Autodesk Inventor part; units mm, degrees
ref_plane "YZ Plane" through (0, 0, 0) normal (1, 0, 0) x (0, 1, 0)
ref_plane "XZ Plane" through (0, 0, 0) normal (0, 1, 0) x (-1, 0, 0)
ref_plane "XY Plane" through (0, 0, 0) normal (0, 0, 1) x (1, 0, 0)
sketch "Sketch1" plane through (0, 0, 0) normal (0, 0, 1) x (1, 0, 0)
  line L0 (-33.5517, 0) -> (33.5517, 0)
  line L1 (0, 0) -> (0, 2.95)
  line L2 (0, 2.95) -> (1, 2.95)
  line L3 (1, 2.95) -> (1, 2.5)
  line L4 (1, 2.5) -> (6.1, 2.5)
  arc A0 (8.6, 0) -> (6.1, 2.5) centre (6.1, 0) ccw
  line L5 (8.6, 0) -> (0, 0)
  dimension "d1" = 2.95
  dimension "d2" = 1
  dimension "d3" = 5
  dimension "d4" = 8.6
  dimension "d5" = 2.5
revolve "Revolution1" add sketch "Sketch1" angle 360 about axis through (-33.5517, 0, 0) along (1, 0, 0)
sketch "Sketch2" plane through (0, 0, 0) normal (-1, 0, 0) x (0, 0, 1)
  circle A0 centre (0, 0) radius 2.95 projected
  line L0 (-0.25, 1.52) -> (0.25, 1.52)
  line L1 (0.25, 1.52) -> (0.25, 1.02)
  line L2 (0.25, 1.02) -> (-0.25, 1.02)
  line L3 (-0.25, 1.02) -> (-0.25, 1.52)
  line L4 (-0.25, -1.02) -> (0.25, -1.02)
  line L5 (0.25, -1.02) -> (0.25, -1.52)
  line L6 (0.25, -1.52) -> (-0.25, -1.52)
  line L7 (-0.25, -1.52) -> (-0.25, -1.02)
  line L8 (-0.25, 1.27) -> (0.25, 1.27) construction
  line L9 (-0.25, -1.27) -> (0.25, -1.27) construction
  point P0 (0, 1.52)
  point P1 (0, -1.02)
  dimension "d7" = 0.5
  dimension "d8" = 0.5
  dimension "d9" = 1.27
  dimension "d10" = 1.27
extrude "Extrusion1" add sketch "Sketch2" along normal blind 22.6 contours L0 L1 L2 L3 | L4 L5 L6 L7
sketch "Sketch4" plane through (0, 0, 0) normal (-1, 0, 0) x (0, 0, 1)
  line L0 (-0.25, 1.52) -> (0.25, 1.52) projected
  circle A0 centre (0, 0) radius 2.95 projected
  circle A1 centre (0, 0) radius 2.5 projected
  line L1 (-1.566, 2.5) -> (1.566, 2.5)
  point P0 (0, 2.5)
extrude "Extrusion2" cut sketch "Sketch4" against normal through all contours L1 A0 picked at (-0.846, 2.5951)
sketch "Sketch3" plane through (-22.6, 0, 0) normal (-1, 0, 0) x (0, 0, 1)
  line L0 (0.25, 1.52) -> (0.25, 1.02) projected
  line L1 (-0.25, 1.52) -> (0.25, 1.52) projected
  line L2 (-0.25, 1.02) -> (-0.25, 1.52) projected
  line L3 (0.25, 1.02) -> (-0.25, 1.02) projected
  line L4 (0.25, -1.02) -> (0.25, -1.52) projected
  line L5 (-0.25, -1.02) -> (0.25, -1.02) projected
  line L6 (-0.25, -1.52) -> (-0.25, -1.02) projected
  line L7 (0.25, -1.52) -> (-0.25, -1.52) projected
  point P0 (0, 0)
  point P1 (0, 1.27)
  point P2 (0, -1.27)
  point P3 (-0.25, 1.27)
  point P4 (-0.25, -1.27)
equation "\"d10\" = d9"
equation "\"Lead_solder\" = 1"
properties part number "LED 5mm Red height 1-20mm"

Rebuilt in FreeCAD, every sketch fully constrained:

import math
import FreeCAD as App
import Part
import Sketcher
Q = App.Units.Quantity


def add_polygon(sketch, points):
    """Adds a closed chain of lines whose ends are joined by coincident constraints."""
    first, n = sketch.GeometryCount, len(points)
    for a, b in zip(points, points[1:] + points[:1]):
        sketch.addGeometry(Part.LineSegment(App.Vector(*a, 0), App.Vector(*b, 0)), False)
    for i in range(n):
        sketch.addConstraint(Sketcher.Constraint("Coincident", first + i, 2, first + (i + 1) % n, 1))

doc = App.newDocument("Part")
body = doc.addObject("PartDesign::Body", "Body")

sketch1 = body.newObject("Sketcher::SketchObject", "Sketch")
sketch1.AttachmentSupport = (doc.getObject("XY_Plane"), [""])
sketch1.MapMode = "FlatFace"
sketch1.addGeometry(Part.LineSegment(App.Vector(0, 2.95, 0), App.Vector(0, 0, 0)), False)
sketch1.addGeometry(Part.LineSegment(App.Vector(0, 0, 0), App.Vector(8.6, 0, 0)), False)
sketch1.addGeometry(Part.ArcOfCircle(Part.Circle(App.Vector(6.1, 0, 0), App.Vector(0, 0, 1), 2.5), math.radians(0), math.radians(90)), False)
sketch1.addGeometry(Part.LineSegment(App.Vector(6.1, 2.5, 0), App.Vector(1, 2.5, 0)), False)
sketch1.addGeometry(Part.LineSegment(App.Vector(1, 2.5, 0), App.Vector(1, 2.95, 0)), False)
sketch1.addGeometry(Part.LineSegment(App.Vector(1, 2.95, 0), App.Vector(0, 2.95, 0)), False)
sketch1.addConstraint(Sketcher.Constraint("Coincident", 0, 2, 1, 1))
sketch1.addConstraint(Sketcher.Constraint("Coincident", 1, 2, 2, 1))
sketch1.addConstraint(Sketcher.Constraint("Tangent", 2, 2, 3, 1))
sketch1.addConstraint(Sketcher.Constraint("Coincident", 3, 2, 4, 1))
sketch1.addConstraint(Sketcher.Constraint("Coincident", 4, 2, 5, 1))
sketch1.addConstraint(Sketcher.Constraint("Coincident", 5, 2, 0, 1))
sketch1.addConstraint(Sketcher.Constraint("Vertical", 0))
sketch1.addConstraint(Sketcher.Constraint("Horizontal", 1))
sketch1.addConstraint(Sketcher.Constraint("Horizontal", 3))
sketch1.addConstraint(Sketcher.Constraint("Vertical", 4))
sketch1.addConstraint(Sketcher.Constraint("Horizontal", 5))
sketch1.addConstraint(Sketcher.Constraint("Coincident", 0, 2, -1, 1))
sketch1.addConstraint(Sketcher.Constraint("PointOnObject", 2, 3, -1))
sketch1.addConstraint(Sketcher.Constraint("Radius", 2, Q("2.5 mm")))
sketch1.addConstraint(Sketcher.Constraint("DistanceX", 5, 2, 5, 1, Q("1 mm")))
sketch1.addConstraint(Sketcher.Constraint("DistanceX", 1, 1, 1, 2, Q("8.6 mm")))
sketch1.addConstraint(Sketcher.Constraint("DistanceY", 0, 2, 0, 1, Q("2.95 mm")))
revolution = body.newObject("PartDesign::Revolution", "Revolution")
revolution.Profile = sketch1
revolution.ReferenceAxis = (sketch1, ["H_Axis"])
revolution.Angle = 360

sketch2 = body.newObject("Sketcher::SketchObject", "Sketch001")
sketch2.AttachmentSupport = (doc.getObject("YZ_Plane"), [""])
sketch2.MapMode = "FlatFace"
add_polygon(sketch2, [(1.5, 0.2), (1.5, -0.2), (1, -0.2), (1, 0.2)])
add_polygon(sketch2, [(-1, 0.2), (-1, -0.2), (-1.5, -0.2), (-1.5, 0.2)])
sketch2.addConstraint(Sketcher.Constraint("Vertical", 0))
sketch2.addConstraint(Sketcher.Constraint("Horizontal", 1))
sketch2.addConstraint(Sketcher.Constraint("Vertical", 2))
sketch2.addConstraint(Sketcher.Constraint("Horizontal", 3))
sketch2.addConstraint(Sketcher.Constraint("Vertical", 4))
sketch2.addConstraint(Sketcher.Constraint("Horizontal", 5))
sketch2.addConstraint(Sketcher.Constraint("Vertical", 6))
sketch2.addConstraint(Sketcher.Constraint("Horizontal", 7))
sketch2.addConstraint(Sketcher.Constraint("Symmetric", 2, 2, 4, 2, -1, 1))
sketch2.addConstraint(Sketcher.Constraint("Symmetric", 0, 2, 6, 2, -1, 1))
sketch2.addConstraint(Sketcher.Constraint("Horizontal", 1, 2, 4, 2))
sketch2.addConstraint(Sketcher.Constraint("Equal", 7, 0))
sketch2.addConstraint(Sketcher.Constraint("DistanceX", 1, 2, 1, 1, Q("0.5 mm")))
sketch2.addConstraint(Sketcher.Constraint("DistanceX", -1, 1, 0, 2, Q("1.52 mm")))
pad1 = body.newObject("PartDesign::Pad", "Pad")
pad1.Profile = sketch2
pad1.Length = 22.6
pad1.Reversed = True

sketch3 = body.newObject("Sketcher::SketchObject", "Sketch002")
sketch3.AttachmentSupport = (doc.getObject("YZ_Plane"), [""])
sketch3.MapMode = "FlatFace"
sketch3.addGeometry(Part.LineSegment(App.Vector(2.5, -1.6, 0), App.Vector(2.5, 1.6, 0)), False)
sketch3.addGeometry(Part.ArcOfCircle(Part.Circle(App.Vector(0, 0, 0), App.Vector(0, 0, 1), 3), math.radians(-32), math.radians(32)), False)
sketch3.addConstraint(Sketcher.Constraint("Coincident", 0, 1, 1, 1))
sketch3.addConstraint(Sketcher.Constraint("Coincident", 1, 2, 0, 2))
sketch3.addConstraint(Sketcher.Constraint("Vertical", 0))
sketch3.addConstraint(Sketcher.Constraint("Coincident", 1, 3, -1, 1))
sketch3.addConstraint(Sketcher.Constraint("Radius", 1, Q("2.95 mm")))
sketch3.addConstraint(Sketcher.Constraint("DistanceX", -1, 1, 0, 1, Q("2.5 mm")))
pocket1 = body.newObject("PartDesign::Pocket", "Pocket")
pocket1.Profile = sketch3
pocket1.Type = "ThroughAll"
pocket1.Reversed = True

doc.recompute()
